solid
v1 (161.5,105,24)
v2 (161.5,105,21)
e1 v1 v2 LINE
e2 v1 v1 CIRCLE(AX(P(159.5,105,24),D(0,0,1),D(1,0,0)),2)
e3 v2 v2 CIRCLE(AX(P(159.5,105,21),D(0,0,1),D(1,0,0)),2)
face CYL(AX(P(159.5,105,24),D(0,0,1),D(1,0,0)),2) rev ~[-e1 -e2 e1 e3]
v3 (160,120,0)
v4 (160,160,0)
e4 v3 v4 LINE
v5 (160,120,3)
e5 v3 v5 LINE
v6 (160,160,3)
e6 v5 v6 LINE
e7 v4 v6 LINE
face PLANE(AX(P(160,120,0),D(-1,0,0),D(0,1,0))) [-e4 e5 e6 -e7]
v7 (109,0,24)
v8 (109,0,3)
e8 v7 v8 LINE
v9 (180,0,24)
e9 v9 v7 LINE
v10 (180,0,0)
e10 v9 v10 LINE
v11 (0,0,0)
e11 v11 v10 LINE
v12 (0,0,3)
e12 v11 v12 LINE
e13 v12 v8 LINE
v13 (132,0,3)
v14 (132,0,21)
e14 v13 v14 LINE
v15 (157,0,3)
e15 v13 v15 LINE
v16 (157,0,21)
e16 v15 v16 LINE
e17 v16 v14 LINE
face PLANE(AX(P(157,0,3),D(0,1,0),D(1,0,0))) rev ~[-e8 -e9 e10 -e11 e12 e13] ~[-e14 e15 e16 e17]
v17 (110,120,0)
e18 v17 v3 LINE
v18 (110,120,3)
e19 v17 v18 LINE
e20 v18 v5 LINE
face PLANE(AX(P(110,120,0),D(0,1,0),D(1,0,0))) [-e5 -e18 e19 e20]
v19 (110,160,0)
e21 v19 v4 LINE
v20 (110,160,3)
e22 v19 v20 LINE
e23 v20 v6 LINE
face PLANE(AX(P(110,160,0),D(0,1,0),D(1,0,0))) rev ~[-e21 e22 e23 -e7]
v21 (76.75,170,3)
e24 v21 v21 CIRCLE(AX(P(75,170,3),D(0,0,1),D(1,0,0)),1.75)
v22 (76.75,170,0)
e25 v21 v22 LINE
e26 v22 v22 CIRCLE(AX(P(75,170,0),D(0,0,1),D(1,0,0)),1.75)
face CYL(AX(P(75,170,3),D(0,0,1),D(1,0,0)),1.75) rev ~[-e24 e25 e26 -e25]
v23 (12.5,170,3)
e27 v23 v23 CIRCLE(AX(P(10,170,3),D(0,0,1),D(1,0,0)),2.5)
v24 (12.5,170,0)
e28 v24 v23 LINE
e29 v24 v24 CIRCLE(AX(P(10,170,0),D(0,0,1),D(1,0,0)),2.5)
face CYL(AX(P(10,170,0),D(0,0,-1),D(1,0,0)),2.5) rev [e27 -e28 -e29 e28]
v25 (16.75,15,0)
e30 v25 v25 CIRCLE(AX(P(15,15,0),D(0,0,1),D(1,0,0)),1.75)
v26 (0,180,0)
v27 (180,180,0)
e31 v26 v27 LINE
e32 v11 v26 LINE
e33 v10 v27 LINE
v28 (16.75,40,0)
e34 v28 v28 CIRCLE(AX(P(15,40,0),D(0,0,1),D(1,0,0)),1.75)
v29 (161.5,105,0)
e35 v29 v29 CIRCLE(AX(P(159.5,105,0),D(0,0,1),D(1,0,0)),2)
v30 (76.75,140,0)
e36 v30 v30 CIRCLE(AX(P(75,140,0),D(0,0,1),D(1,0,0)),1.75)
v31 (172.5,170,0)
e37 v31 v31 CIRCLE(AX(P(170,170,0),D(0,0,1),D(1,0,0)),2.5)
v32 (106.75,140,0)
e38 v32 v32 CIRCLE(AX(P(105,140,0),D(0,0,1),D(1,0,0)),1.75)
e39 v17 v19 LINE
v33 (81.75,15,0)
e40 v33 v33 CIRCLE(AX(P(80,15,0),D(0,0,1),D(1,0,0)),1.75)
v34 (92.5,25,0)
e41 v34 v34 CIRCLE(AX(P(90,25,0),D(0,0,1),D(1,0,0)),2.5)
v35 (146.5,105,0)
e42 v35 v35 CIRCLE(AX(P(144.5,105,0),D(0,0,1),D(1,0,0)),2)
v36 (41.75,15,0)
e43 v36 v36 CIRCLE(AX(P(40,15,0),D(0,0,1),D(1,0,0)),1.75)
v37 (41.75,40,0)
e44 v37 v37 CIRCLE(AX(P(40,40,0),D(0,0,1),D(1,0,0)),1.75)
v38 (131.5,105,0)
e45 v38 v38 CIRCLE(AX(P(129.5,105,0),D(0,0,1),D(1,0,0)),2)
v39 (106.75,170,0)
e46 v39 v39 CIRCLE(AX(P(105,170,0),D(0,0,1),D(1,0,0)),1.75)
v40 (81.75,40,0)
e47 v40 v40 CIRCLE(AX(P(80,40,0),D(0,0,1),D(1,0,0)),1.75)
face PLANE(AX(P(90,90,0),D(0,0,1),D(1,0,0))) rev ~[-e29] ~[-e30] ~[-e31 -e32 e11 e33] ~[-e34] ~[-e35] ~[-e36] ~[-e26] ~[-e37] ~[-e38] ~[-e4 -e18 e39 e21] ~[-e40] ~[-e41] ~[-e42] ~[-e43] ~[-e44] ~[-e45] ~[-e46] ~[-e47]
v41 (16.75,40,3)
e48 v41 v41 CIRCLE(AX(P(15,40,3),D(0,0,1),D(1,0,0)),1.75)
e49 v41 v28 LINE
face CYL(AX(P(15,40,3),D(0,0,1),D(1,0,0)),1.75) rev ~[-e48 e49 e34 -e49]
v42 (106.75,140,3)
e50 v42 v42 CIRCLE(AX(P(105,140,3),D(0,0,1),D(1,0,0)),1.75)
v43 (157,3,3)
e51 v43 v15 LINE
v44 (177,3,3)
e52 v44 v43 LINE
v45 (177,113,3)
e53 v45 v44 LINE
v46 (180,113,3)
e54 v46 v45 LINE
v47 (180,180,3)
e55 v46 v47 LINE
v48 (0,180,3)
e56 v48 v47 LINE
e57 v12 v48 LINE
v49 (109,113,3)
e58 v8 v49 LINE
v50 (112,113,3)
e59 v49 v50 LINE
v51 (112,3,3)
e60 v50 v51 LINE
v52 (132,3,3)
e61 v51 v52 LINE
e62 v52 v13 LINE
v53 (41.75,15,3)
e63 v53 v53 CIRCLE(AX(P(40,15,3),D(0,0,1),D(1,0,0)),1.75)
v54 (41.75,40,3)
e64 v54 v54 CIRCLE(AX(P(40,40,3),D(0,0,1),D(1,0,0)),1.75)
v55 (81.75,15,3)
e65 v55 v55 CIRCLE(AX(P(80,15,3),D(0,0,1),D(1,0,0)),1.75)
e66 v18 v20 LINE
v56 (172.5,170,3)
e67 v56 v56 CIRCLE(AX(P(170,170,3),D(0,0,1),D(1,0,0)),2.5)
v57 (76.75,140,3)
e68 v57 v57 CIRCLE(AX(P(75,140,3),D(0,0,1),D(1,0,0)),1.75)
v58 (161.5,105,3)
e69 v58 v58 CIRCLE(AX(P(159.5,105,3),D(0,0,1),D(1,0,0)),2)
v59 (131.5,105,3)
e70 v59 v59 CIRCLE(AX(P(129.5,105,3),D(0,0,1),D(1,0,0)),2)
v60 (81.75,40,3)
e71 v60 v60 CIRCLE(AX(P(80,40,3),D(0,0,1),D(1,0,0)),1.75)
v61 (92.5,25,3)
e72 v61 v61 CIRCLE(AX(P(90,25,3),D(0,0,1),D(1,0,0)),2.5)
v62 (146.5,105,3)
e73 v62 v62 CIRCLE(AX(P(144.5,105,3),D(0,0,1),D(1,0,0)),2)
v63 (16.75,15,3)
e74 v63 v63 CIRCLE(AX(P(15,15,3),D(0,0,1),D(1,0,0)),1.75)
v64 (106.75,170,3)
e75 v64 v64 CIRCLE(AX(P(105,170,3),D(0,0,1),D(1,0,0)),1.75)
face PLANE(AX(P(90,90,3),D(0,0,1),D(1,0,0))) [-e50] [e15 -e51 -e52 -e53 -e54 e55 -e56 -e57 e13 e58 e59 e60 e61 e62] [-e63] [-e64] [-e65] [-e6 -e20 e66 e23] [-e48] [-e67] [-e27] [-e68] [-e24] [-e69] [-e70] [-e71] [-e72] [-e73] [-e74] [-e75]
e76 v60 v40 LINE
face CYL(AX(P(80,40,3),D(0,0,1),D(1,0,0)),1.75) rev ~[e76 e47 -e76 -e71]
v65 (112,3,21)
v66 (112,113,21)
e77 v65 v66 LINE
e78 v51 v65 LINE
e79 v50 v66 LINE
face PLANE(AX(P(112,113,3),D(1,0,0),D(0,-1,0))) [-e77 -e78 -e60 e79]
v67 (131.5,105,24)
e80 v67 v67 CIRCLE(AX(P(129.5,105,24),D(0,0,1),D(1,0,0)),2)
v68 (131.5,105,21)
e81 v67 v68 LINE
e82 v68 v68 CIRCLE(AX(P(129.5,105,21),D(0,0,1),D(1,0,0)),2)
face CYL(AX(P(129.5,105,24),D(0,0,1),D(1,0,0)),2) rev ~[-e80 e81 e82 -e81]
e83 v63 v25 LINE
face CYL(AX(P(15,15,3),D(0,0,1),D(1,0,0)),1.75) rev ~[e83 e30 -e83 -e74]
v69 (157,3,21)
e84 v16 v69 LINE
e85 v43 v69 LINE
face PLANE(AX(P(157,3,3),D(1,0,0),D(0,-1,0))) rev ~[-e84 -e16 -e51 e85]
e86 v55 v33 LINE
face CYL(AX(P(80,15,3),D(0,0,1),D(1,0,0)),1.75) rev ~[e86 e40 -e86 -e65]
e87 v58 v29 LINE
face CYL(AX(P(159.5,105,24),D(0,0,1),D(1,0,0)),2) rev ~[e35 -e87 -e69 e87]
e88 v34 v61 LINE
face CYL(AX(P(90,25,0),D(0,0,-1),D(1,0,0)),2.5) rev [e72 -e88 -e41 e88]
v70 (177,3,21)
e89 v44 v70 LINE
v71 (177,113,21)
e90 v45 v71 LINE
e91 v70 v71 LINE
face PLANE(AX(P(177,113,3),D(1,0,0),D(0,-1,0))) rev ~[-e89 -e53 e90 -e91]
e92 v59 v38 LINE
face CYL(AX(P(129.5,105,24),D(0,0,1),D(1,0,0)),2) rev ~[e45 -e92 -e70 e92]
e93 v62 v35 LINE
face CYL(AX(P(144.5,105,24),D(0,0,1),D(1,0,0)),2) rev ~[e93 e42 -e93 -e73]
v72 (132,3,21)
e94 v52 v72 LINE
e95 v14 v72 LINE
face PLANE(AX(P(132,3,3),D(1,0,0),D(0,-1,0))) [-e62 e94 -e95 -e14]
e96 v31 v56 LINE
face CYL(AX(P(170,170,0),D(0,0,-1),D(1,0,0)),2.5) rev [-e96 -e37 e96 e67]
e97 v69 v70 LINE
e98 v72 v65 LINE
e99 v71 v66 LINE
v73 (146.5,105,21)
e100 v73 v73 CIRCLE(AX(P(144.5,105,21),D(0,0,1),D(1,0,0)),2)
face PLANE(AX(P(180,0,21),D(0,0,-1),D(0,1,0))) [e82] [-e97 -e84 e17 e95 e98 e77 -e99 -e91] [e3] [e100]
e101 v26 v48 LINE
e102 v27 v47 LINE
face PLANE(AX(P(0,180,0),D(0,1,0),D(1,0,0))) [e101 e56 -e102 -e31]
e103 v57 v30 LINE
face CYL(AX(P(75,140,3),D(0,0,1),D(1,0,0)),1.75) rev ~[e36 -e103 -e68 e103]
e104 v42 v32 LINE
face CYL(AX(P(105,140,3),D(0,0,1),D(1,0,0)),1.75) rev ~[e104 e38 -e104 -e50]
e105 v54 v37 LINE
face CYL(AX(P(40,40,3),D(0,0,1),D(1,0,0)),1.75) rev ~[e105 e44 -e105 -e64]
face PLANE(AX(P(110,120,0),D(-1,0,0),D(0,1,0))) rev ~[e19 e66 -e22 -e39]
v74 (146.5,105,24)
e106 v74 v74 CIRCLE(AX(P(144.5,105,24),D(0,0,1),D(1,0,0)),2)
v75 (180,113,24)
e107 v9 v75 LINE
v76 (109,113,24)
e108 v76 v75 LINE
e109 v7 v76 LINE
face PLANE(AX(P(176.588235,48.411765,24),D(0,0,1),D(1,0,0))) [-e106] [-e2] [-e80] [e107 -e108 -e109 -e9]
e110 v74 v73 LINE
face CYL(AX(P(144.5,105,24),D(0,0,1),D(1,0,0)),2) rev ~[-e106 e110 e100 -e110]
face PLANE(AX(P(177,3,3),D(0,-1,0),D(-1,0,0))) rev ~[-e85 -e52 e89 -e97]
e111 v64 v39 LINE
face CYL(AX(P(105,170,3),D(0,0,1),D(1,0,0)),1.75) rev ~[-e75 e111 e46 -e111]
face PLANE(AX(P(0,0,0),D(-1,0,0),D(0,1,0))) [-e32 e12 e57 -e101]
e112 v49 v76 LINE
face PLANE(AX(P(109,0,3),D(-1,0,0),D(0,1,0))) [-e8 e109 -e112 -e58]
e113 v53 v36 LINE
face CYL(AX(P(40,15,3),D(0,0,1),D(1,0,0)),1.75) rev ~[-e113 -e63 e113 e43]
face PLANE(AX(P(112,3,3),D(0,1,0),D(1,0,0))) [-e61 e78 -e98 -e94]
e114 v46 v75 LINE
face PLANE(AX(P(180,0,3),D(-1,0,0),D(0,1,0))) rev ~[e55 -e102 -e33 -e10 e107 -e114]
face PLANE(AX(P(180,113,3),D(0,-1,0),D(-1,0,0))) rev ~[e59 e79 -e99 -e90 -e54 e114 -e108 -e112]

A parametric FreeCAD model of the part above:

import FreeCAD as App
import Part
import Sketcher

V = App.Vector
Q = App.Units.Quantity

doc = App.newDocument("Part")
body = doc.addObject("PartDesign::Body", "Body")

sketch1 = doc.addObject("Sketcher::SketchObject", "Sketch")
body.addObject(sketch1)
sketch1.AttachmentSupport = (doc.XY_Plane, [""])
sketch1.MapMode = "FlatFace"
sketch1.addGeometry([
    Part.LineSegment(V(0, 180, 0), V(0, 0, 0)),
    Part.LineSegment(V(0, 0, 0), V(180, 0, 0)),
    Part.LineSegment(V(180, 0, 0), V(180, 180, 0)),
    Part.LineSegment(V(180, 180, 0), V(0, 180, 0)),
    Part.Circle(V(90, 25, 0), V(0, 0, 1), 2.5),
    Part.Circle(V(10, 170, 0), V(0, 0, 1), 2.5),
    Part.LineSegment(V(160, 120, 0), V(110, 120, 0)),
    Part.LineSegment(V(110, 120, 0), V(110, 160, 0)),
    Part.LineSegment(V(110, 160, 0), V(160, 160, 0)),
    Part.LineSegment(V(160, 160, 0), V(160, 120, 0)),
    Part.Circle(V(170, 170, 0), V(0, 0, 1), 2.5),
], False)
sketch1.addConstraint([
    Sketcher.Constraint("Coincident", 0, 2, 1, 1),
    Sketcher.Constraint("Coincident", 1, 2, 2, 1),
    Sketcher.Constraint("Coincident", 2, 2, 3, 1),
    Sketcher.Constraint("Coincident", 3, 2, 0, 1),
    Sketcher.Constraint("Coincident", 6, 2, 7, 1),
    Sketcher.Constraint("Coincident", 7, 2, 8, 1),
    Sketcher.Constraint("Coincident", 8, 2, 9, 1),
    Sketcher.Constraint("Coincident", 9, 2, 6, 1),
    Sketcher.Constraint("Vertical", 0),
    Sketcher.Constraint("Horizontal", 1),
    Sketcher.Constraint("Vertical", 2),
    Sketcher.Constraint("Horizontal", 3),
    Sketcher.Constraint("Horizontal", 6),
    Sketcher.Constraint("Vertical", 7),
    Sketcher.Constraint("Horizontal", 8),
    Sketcher.Constraint("Vertical", 9),
    Sketcher.Constraint("Coincident", 0, 2, -1, 1),
    Sketcher.Constraint("Equal", 4, 5),
    Sketcher.Constraint("Equal", 5, 10),
    Sketcher.Constraint("Horizontal", 5, 3, 10, 3),
    Sketcher.Constraint("Equal", 3, 0),
    Sketcher.Constraint("Diameter", 4, Q("5 mm")),
    Sketcher.Constraint("DistanceX", 1, 1, 1, 2, Q("180 mm")),
    Sketcher.Constraint("DistanceX", 6, 2, 6, 1, Q("50 mm")),
    Sketcher.Constraint("DistanceY", 7, 1, 7, 2, Q("40 mm")),
    Sketcher.Constraint("DistanceX", -1, 1, 4, 3, Q("90 mm")),
    Sketcher.Constraint("DistanceY", -1, 1, 4, 3, Q("25 mm")),
    Sketcher.Constraint("DistanceX", -1, 1, 5, 3, Q("10 mm")),
    Sketcher.Constraint("DistanceY", -1, 1, 5, 3, Q("170 mm")),
    Sketcher.Constraint("DistanceX", -1, 1, 10, 3, Q("170 mm")),
    Sketcher.Constraint("DistanceX", -1, 1, 6, 2, Q("110 mm")),
    Sketcher.Constraint("DistanceY", -1, 1, 6, 2, Q("120 mm")),
])
pad1 = doc.addObject("PartDesign::Pad", "Pad")
body.addObject(pad1)
pad1.Profile = sketch1
pad1.Length = 3

sketch2 = doc.addObject("Sketcher::SketchObject", "Sketch001")
body.addObject(sketch2)
sketch2.AttachmentSupport = (doc.XY_Plane, [""])
sketch2.MapMode = "FlatFace"
sketch2.AttachmentOffset = App.Placement(V(0, 0, 3), App.Rotation())
sketch2.addGeometry([
    Part.LineSegment(V(180, 0, 0), V(180, 113, 0)),
    Part.LineSegment(V(180, 113, 0), V(177, 113, 0)),
    Part.LineSegment(V(177, 113, 0), V(177, 3, 0)),
    Part.LineSegment(V(177, 3, 0), V(157, 3, 0)),
    Part.LineSegment(V(157, 3, 0), V(157, 0, 0)),
    Part.LineSegment(V(157, 0, 0), V(180, 0, 0)),
    Part.LineSegment(V(112, 3, 0), V(112, 113, 0)),
    Part.LineSegment(V(112, 113, 0), V(109, 113, 0)),
    Part.LineSegment(V(109, 113, 0), V(109, 0, 0)),
    Part.LineSegment(V(109, 0, 0), V(132, 0, 0)),
    Part.LineSegment(V(132, 0, 0), V(132, 3, 0)),
    Part.LineSegment(V(132, 3, 0), V(112, 3, 0)),
], False)
sketch2.addConstraint([
    Sketcher.Constraint("Coincident", 0, 2, 1, 1),
    Sketcher.Constraint("Coincident", 1, 2, 2, 1),
    Sketcher.Constraint("Coincident", 2, 2, 3, 1),
    Sketcher.Constraint("Coincident", 3, 2, 4, 1),
    Sketcher.Constraint("Coincident", 4, 2, 5, 1),
    Sketcher.Constraint("Coincident", 5, 2, 0, 1),
    Sketcher.Constraint("Coincident", 6, 2, 7, 1),
    Sketcher.Constraint("Coincident", 7, 2, 8, 1),
    Sketcher.Constraint("Coincident", 8, 2, 9, 1),
    Sketcher.Constraint("Coincident", 9, 2, 10, 1),
    Sketcher.Constraint("Coincident", 10, 2, 11, 1),
    Sketcher.Constraint("Coincident", 11, 2, 6, 1),
    Sketcher.Constraint("Vertical", 0),
    Sketcher.Constraint("Horizontal", 1),
    Sketcher.Constraint("Vertical", 2),
    Sketcher.Constraint("Horizontal", 3),
    Sketcher.Constraint("Vertical", 4),
    Sketcher.Constraint("Horizontal", 5),
    Sketcher.Constraint("Vertical", 6),
    Sketcher.Constraint("Horizontal", 7),
    Sketcher.Constraint("Vertical", 8),
    Sketcher.Constraint("Horizontal", 9),
    Sketcher.Constraint("Vertical", 10),
    Sketcher.Constraint("Horizontal", 11),
    Sketcher.Constraint("PointOnObject", 4, 2, -1),
    Sketcher.Constraint("PointOnObject", 8, 2, -1),
    Sketcher.Constraint("Horizontal", 1, 2, 6, 2),
    Sketcher.Constraint("Horizontal", 3, 2, 10, 2),
    Sketcher.Constraint("Equal", 1, 7),
    Sketcher.Constraint("Equal", 5, 9),
    Sketcher.Constraint("Equal", 7, 4),
    Sketcher.Constraint("DistanceX", 1, 2, 1, 1, Q("3 mm")),
    Sketcher.Constraint("DistanceX", 3, 2, 3, 1, Q("20 mm")),
    Sketcher.Constraint("DistanceY", 0, 1, 0, 2, Q("113 mm")),
    Sketcher.Constraint("DistanceX", -1, 1, 0, 2, Q("180 mm")),
    Sketcher.Constraint("DistanceX", -1, 1, 6, 2, Q("112 mm")),
])
pad2 = doc.addObject("PartDesign::Pad", "Pad001")
body.addObject(pad2)
pad2.Profile = sketch2
pad2.Length = 21

sketch3 = doc.addObject("Sketcher::SketchObject", "Sketch002")
body.addObject(sketch3)
sketch3.AttachmentSupport = (doc.YZ_Plane, [""])
sketch3.MapMode = "FlatFace"
sketch3.AttachmentOffset = App.Placement(V(0, 0, 180), App.Rotation())
sketch3.addGeometry([
    Part.LineSegment(V(0, 24, 0), V(0, 21, 0)),
    Part.LineSegment(V(0, 21, 0), V(113, 21, 0)),
    Part.LineSegment(V(113, 21, 0), V(113, 24, 0)),
    Part.LineSegment(V(113, 24, 0), V(0, 24, 0)),
], False)
sketch3.addConstraint([
    Sketcher.Constraint("Coincident", 0, 2, 1, 1),
    Sketcher.Constraint("Coincident", 1, 2, 2, 1),
    Sketcher.Constraint("Coincident", 2, 2, 3, 1),
    Sketcher.Constraint("Coincident", 3, 2, 0, 1),
    Sketcher.Constraint("Vertical", 0),
    Sketcher.Constraint("Horizontal", 1),
    Sketcher.Constraint("Vertical", 2),
    Sketcher.Constraint("Horizontal", 3),
    Sketcher.Constraint("PointOnObject", 0, 2, -2),
    Sketcher.Constraint("DistanceX", 1, 1, 1, 2, Q("113 mm")),
    Sketcher.Constraint("DistanceY", 0, 2, 0, 1, Q("3 mm")),
    Sketcher.Constraint("DistanceY", -1, 1, 0, 2, Q("21 mm")),
])
pad3 = doc.addObject("PartDesign::Pad", "Pad002")
body.addObject(pad3)
pad3.Profile = sketch3
pad3.Length = 71
pad3.Reversed = True

sketch4 = doc.addObject("Sketcher::SketchObject", "Sketch003")
body.addObject(sketch4)
sketch4.AttachmentSupport = (doc.XY_Plane, [""])
sketch4.MapMode = "FlatFace"
sketch4.AttachmentOffset = App.Placement(V(0, 0, 24), App.Rotation())
sketch4.addGeometry([
    Part.Circle(V(129.5, 105, 0), V(0, 0, 1), 2),
    Part.Circle(V(144.5, 105, 0), V(0, 0, 1), 2),
    Part.Circle(V(159.5, 105, 0), V(0, 0, 1), 2),
], False)
sketch4.addConstraint([
    Sketcher.Constraint("Equal", 0, 1),
    Sketcher.Constraint("Equal", 1, 2),
    Sketcher.Constraint("Horizontal", 0, 3, 1, 3),
    Sketcher.Constraint("Horizontal", 1, 3, 2, 3),
    Sketcher.Constraint("Diameter", 0, Q("4 mm")),
    Sketcher.Constraint("DistanceY", -1, 1, 0, 3, Q("105 mm")),
    Sketcher.Constraint("DistanceX", 0, 3, 1, 3, Q("15 mm")),
    Sketcher.Constraint("DistanceX", 1, 3, 2, 3, Q("15 mm")),
    Sketcher.Constraint("DistanceX", -1, 1, 0, 3, Q("129.5 mm")),
])
pocket1 = doc.addObject("PartDesign::Pocket", "Pocket")
body.addObject(pocket1)
pocket1.Profile = sketch4
pocket1.Length = 100

sketch5 = doc.addObject("Sketcher::SketchObject", "Sketch004")
body.addObject(sketch5)
sketch5.AttachmentSupport = (doc.XY_Plane, [""])
sketch5.MapMode = "FlatFace"
sketch5.AttachmentOffset = App.Placement(V(0, 0, 3), App.Rotation())
sketch5.addGeometry([
    Part.Circle(V(75, 170, 0), V(0, 0, 1), 1.8),
    Part.Circle(V(105, 170, 0), V(0, 0, 1), 1.8),
    Part.Circle(V(75, 140, 0), V(0, 0, 1), 1.8),
    Part.Circle(V(105, 140, 0), V(0, 0, 1), 1.8),
], False)
sketch5.addConstraint([
    Sketcher.Constraint("Equal", 0, 1),
    Sketcher.Constraint("Equal", 1, 2),
    Sketcher.Constraint("Equal", 2, 3),
    Sketcher.Constraint("Horizontal", 0, 3, 1, 3),
    Sketcher.Constraint("Horizontal", 2, 3, 3, 3),
    Sketcher.Constraint("Vertical", 0, 3, 2, 3),
    Sketcher.Constraint("Vertical", 1, 3, 3, 3),
    Sketcher.Constraint("Diameter", 0, Q("3.5 mm")),
    Sketcher.Constraint("DistanceX", -1, 1, 0, 3, Q("75 mm")),
    Sketcher.Constraint("DistanceY", -1, 1, 0, 3, Q("170 mm")),
    Sketcher.Constraint("DistanceX", -1, 1, 1, 3, Q("105 mm")),
    Sketcher.Constraint("DistanceY", -1, 1, 2, 3, Q("140 mm")),
])
pocket2 = doc.addObject("PartDesign::Pocket", "Pocket001")
body.addObject(pocket2)
pocket2.Profile = sketch5
pocket2.Length = 5

sketch6 = doc.addObject("Sketcher::SketchObject", "Sketch005")
body.addObject(sketch6)
sketch6.AttachmentSupport = (doc.XY_Plane, [""])
sketch6.MapMode = "FlatFace"
sketch6.AttachmentOffset = App.Placement(V(0, 0, 3), App.Rotation())
sketch6.addGeometry([
    Part.Circle(V(15, 15, 0), V(0, 0, 1), 1.8),
    Part.Circle(V(15, 40, 0), V(0, 0, 1), 1.8),
    Part.Circle(V(40, 40, 0), V(0, 0, 1), 1.8),
    Part.Circle(V(40, 15, 0), V(0, 0, 1), 1.8),
    Part.Circle(V(80, 40, 0), V(0, 0, 1), 1.8),
    Part.Circle(V(80, 15, 0), V(0, 0, 1), 1.8),
], False)
sketch6.addConstraint([
    Sketcher.Constraint("Equal", 0, 1),
    Sketcher.Constraint("Equal", 1, 2),
    Sketcher.Constraint("Equal", 2, 3),
    Sketcher.Constraint("Equal", 3, 4),
    Sketcher.Constraint("Equal", 4, 5),
    Sketcher.Constraint("Horizontal", 1, 3, 2, 3),
    Sketcher.Constraint("Horizontal", 0, 3, 3, 3),
    Sketcher.Constraint("Horizontal", 2, 3, 4, 3),
    Sketcher.Constraint("Horizontal", 3, 3, 5, 3),
    Sketcher.Constraint("Vertical", 0, 3, 1, 3),
    Sketcher.Constraint("Vertical", 2, 3, 3, 3),
    Sketcher.Constraint("Vertical", 4, 3, 5, 3),
    Sketcher.Constraint("Diameter", 0, Q("3.5 mm")),
    Sketcher.Constraint("DistanceX", -1, 1, 0, 3, Q("15 mm")),
    Sketcher.Constraint("DistanceY", -1, 1, 0, 3, Q("15 mm")),
    Sketcher.Constraint("DistanceY", -1, 1, 1, 3, Q("40 mm")),
    Sketcher.Constraint("DistanceX", -1, 1, 2, 3, Q("40 mm")),
    Sketcher.Constraint("DistanceX", -1, 1, 4, 3, Q("80 mm")),
])
pocket3 = doc.addObject("PartDesign::Pocket", "Pocket002")
body.addObject(pocket3)
pocket3.Profile = sketch6
pocket3.Length = 5

doc.recompute()
